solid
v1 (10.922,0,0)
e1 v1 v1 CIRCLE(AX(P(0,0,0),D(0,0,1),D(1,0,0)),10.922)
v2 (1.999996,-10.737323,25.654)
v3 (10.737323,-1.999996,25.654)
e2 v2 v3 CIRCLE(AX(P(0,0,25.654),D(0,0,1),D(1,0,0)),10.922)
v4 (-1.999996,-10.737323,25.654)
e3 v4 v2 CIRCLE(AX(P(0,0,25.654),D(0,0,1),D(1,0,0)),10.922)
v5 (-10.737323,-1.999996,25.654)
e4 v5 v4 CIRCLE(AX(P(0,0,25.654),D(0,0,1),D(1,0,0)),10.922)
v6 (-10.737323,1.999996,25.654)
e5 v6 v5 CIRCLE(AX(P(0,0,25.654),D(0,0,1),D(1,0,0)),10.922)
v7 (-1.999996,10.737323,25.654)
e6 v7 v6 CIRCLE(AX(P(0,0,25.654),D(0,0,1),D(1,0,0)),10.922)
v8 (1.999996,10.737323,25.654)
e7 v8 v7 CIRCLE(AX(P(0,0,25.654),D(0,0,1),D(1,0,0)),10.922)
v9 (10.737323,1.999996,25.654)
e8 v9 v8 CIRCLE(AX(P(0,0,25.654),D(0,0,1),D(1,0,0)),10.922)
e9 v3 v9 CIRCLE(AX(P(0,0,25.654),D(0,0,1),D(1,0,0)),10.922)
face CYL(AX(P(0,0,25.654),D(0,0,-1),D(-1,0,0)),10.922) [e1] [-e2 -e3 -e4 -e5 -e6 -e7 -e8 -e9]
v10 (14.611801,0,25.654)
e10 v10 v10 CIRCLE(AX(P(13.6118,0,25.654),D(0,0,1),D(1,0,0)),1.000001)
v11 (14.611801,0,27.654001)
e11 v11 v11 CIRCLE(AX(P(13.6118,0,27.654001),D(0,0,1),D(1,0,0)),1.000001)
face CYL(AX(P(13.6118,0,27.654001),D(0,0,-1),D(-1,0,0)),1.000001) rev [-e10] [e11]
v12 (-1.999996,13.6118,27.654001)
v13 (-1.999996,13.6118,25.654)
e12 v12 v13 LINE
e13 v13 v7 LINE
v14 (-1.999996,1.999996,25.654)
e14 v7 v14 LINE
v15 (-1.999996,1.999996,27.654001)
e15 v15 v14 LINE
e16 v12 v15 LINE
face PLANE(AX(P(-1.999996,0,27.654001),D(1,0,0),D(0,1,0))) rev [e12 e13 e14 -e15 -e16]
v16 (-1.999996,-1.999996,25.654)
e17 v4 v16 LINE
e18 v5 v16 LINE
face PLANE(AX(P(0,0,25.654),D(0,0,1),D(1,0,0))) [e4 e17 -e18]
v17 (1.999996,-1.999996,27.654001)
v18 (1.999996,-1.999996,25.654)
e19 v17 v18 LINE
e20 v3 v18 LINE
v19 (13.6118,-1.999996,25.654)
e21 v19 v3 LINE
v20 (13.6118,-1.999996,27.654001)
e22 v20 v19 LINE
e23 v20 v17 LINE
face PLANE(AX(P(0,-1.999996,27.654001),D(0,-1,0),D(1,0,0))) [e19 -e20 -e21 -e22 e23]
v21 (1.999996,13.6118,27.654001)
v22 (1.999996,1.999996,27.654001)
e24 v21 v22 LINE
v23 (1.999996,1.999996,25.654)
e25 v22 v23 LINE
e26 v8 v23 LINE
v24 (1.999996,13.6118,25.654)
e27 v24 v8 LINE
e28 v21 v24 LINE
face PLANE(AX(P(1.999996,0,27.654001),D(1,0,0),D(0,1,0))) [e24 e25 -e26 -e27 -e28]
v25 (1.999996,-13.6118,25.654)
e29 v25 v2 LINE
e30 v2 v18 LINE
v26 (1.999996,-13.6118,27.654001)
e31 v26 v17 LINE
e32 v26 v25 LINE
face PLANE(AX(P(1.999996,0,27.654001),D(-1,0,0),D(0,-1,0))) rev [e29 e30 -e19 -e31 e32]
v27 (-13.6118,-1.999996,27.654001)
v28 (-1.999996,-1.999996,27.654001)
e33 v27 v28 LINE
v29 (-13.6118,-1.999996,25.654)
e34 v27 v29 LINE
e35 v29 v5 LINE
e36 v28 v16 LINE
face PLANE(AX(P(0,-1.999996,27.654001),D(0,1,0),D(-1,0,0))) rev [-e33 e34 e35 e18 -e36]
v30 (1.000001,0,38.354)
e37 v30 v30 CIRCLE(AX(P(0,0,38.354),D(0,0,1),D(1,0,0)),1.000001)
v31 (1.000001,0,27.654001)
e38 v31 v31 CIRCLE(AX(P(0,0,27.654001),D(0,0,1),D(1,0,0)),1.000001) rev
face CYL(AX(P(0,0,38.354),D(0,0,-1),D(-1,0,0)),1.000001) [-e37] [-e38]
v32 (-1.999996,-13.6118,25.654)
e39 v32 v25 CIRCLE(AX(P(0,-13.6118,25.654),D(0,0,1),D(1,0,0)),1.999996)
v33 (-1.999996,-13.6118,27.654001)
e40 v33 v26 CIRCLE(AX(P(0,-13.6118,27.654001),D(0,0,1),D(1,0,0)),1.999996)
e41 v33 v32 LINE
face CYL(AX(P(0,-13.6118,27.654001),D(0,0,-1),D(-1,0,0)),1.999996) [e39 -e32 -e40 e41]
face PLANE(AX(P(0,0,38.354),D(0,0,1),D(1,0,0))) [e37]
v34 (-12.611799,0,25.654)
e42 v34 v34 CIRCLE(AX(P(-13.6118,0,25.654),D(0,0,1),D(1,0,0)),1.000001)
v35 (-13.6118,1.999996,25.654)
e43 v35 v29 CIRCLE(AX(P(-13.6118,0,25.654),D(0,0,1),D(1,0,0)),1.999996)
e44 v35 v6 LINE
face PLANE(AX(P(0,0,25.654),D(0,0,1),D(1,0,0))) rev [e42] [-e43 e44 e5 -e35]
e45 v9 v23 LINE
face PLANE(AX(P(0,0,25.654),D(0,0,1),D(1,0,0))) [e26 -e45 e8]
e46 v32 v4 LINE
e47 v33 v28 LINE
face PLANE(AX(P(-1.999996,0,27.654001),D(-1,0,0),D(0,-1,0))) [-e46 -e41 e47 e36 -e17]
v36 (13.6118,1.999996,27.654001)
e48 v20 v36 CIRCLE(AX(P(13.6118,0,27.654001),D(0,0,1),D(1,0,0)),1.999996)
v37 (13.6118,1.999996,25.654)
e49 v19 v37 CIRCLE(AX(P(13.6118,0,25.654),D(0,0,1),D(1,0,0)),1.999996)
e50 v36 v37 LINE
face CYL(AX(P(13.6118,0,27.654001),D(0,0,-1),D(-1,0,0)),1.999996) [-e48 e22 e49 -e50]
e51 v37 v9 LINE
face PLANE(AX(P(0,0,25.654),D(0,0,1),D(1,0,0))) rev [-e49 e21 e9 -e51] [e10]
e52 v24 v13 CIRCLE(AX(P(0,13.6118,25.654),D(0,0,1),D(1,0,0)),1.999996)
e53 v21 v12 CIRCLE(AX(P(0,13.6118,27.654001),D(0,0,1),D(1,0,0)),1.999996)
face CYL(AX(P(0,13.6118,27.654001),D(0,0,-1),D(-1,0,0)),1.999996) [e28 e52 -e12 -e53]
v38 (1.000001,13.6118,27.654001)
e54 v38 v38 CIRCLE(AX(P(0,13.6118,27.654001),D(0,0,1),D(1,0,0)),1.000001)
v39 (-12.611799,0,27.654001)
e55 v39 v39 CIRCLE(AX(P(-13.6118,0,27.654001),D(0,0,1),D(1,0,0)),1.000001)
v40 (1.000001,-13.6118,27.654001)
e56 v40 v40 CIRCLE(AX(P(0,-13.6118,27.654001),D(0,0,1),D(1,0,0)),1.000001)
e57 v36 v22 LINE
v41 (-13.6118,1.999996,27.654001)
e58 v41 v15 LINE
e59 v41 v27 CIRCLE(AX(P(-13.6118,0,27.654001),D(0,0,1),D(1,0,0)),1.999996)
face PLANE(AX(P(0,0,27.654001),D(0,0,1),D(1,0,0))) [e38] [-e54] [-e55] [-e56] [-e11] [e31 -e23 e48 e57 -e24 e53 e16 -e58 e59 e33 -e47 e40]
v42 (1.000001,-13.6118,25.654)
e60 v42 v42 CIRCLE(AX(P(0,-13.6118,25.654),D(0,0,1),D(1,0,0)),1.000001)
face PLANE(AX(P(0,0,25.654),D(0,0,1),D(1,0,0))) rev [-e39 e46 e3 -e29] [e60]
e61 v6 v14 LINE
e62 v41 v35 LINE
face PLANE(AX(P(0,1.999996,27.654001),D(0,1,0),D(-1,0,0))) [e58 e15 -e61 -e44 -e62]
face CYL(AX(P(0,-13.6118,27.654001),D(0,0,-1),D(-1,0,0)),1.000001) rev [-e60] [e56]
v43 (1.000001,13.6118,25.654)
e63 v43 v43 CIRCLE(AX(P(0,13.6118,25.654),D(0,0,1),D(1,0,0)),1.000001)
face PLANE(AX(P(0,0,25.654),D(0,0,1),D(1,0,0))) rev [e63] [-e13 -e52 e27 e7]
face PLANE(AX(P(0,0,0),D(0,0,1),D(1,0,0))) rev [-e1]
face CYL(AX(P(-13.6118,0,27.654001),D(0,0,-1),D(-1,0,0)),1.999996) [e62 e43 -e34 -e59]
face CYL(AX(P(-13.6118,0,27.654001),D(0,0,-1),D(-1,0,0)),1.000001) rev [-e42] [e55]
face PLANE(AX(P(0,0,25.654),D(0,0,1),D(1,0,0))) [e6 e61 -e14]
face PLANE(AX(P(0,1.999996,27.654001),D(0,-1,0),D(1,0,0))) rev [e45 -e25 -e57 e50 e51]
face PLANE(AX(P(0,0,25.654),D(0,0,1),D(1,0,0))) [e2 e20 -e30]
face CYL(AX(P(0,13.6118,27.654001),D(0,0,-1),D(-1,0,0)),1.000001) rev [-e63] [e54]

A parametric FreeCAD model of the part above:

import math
import FreeCAD as App
import Part
import Sketcher
Q = App.Units.Quantity

doc = App.newDocument("Part")
params = doc.addObject("Spreadsheet::Sheet", "Params")
for row, (alias, value) in enumerate([
    ("sketch1_diameter", "0.86 in"),
    ("pad1_length", "1.01 in"),
    ("pad2_length", "2.000001 mm"),
    ("pad3_length", "0.5 in"),
], start=1):
    params.set(f"A{row}", alias)
    params.set(f"B{row}", "=" + value)
    params.setAlias(f"B{row}", alias)

body = doc.addObject("PartDesign::Body", "Body")

# Sketch on XY plane
sketch1 = body.newObject("Sketcher::SketchObject", "Sketch")
sketch1.AttachmentSupport = (doc.getObject("XY_Plane"), [""])
sketch1.MapMode = "FlatFace"
sketch1.addGeometry(Part.Circle(App.Vector(0, 0, 0), App.Vector(0, 0, 1), 11), False)
sketch1.addConstraint([
    Sketcher.Constraint("Coincident", 0, 3, -1, 1),
    Sketcher.Constraint("Diameter", 0, Q("0.86 in")),
])
sketch1.setExpression("Constraints[1]", "Params.sketch1_diameter")
pad1 = body.newObject("PartDesign::Pad", "Pad")
pad1.Profile = sketch1
pad1.setExpression("Length", "Params.pad1_length")

# Sketch on XY plane
sketch2 = body.newObject("Sketcher::SketchObject", "Sketch001")
sketch2.AttachmentSupport = (doc.getObject("XY_Plane"), [""])
sketch2.MapMode = "FlatFace"
sketch2.AttachmentOffset = App.Placement(App.Vector(0, 0, 1.01 * 25.4), App.Rotation())
sketch2.addGeometry([
    Part.LineSegment(App.Vector(-2, 2, 0), App.Vector(-13.6, 2, 0)),  # 0
    Part.ArcOfCircle(Part.Circle(App.Vector(-13.6, 0, 0), App.Vector(0, 0, 1), 2), math.radians(90), math.radians(270)),  # 1
    Part.LineSegment(App.Vector(-13.6, -2, 0), App.Vector(-2, -2, 0)),  # 2
    Part.LineSegment(App.Vector(-2, -2, 0), App.Vector(-2, -13.6, 0)),  # 3
    Part.ArcOfCircle(Part.Circle(App.Vector(0, -13.6, 0), App.Vector(0, 0, 1), 2), math.radians(180), math.radians(360)),  # 4
    Part.LineSegment(App.Vector(2, -13.6, 0), App.Vector(2, -2, 0)),  # 5
    Part.LineSegment(App.Vector(2, -2, 0), App.Vector(13.6, -2, 0)),  # 6
    Part.ArcOfCircle(Part.Circle(App.Vector(13.6, 0, 0), App.Vector(0, 0, 1), 2), math.radians(-90), math.radians(90)),  # 7
    Part.LineSegment(App.Vector(13.6, 2, 0), App.Vector(2, 2, 0)),  # 8
    Part.LineSegment(App.Vector(2, 2, 0), App.Vector(2, 13.6, 0)),  # 9
    Part.ArcOfCircle(Part.Circle(App.Vector(0, 13.6, 0), App.Vector(0, 0, 1), 2), math.radians(0), math.radians(180)),  # 10
    Part.LineSegment(App.Vector(-2, 13.6, 0), App.Vector(-2, 2, 0)),  # 11
    Part.Circle(App.Vector(0, 13.6, 0), App.Vector(0, 0, 1), 1),  # 12
    Part.Circle(App.Vector(-13.6, 0, 0), App.Vector(0, 0, 1), 1),  # 13
    Part.Circle(App.Vector(0, -13.6, 0), App.Vector(0, 0, 1), 1),  # 14
    Part.Circle(App.Vector(13.6, 0, 0), App.Vector(0, 0, 1), 1),  # 15
], False)
sketch2.addConstraint([
    Sketcher.Constraint("Tangent", 0, 2, 1, 1),
    Sketcher.Constraint("Tangent", 1, 2, 2, 1),
    Sketcher.Constraint("Coincident", 2, 2, 3, 1),
    Sketcher.Constraint("Tangent", 3, 2, 4, 1),
    Sketcher.Constraint("Tangent", 4, 2, 5, 1),
    Sketcher.Constraint("Coincident", 5, 2, 6, 1),
    Sketcher.Constraint("Tangent", 6, 2, 7, 1),
    Sketcher.Constraint("Tangent", 7, 2, 8, 1),
    Sketcher.Constraint("Coincident", 8, 2, 9, 1),
    Sketcher.Constraint("Tangent", 9, 2, 10, 1),
    Sketcher.Constraint("Tangent", 10, 2, 11, 1),
    Sketcher.Constraint("Coincident", 11, 2, 0, 1),
    Sketcher.Constraint("Horizontal", 0),
    Sketcher.Constraint("Horizontal", 2),
    Sketcher.Constraint("Vertical", 3),
    Sketcher.Constraint("Vertical", 5),
    Sketcher.Constraint("Horizontal", 6),
    Sketcher.Constraint("Horizontal", 8),
    Sketcher.Constraint("Vertical", 9),
    Sketcher.Constraint("Vertical", 11),
    Sketcher.Constraint("Coincident", 12, 3, 10, 3),
    Sketcher.Constraint("Coincident", 13, 3, 1, 3),
    Sketcher.Constraint("Coincident", 14, 3, 4, 3),
    Sketcher.Constraint("Coincident", 15, 3, 7, 3),
    Sketcher.Constraint("Equal", 1, 4),
    Sketcher.Constraint("Equal", 4, 7),
    Sketcher.Constraint("Equal", 7, 10),
    Sketcher.Constraint("Equal", 12, 13),
    Sketcher.Constraint("Equal", 13, 14),
    Sketcher.Constraint("Equal", 14, 15),
    Sketcher.Constraint("Symmetric", 1, 3, 7, 3, -1, 1),
    Sketcher.Constraint("Symmetric", 4, 3, 10, 3, -1, 1),
    Sketcher.Constraint("Symmetric", 2, 2, 5, 2, -2),
    Sketcher.Constraint("Equal", 8, 3),
    Sketcher.Constraint("Diameter", 12, 2.000001),
    Sketcher.Constraint("Radius", 1, 1.999996),
    Sketcher.Constraint("DistanceX", 1, 3, -1, 1, 13.6118),
])
pad2 = body.newObject("PartDesign::Pad", "Pad001")
pad2.Profile = sketch2
pad2.setExpression("Length", "Params.pad2_length")

# Sketch on XY plane
sketch3 = body.newObject("Sketcher::SketchObject", "Sketch002")
sketch3.AttachmentSupport = (doc.getObject("XY_Plane"), [""])
sketch3.MapMode = "FlatFace"
sketch3.AttachmentOffset = App.Placement(App.Vector(0, 0, 1.01 * 25.4), App.Rotation())
sketch3.addGeometry(Part.Circle(App.Vector(0, 0, 0), App.Vector(0, 0, 1), 1), False)
sketch3.addConstraint([
    Sketcher.Constraint("Coincident", 0, 3, -1, 1),
    Sketcher.Constraint("Diameter", 0, 2.000001),
])
pad3 = body.newObject("PartDesign::Pad", "Pad002")
pad3.Profile = sketch3
pad3.setExpression("Length", "Params.pad3_length")

doc.recompute()
